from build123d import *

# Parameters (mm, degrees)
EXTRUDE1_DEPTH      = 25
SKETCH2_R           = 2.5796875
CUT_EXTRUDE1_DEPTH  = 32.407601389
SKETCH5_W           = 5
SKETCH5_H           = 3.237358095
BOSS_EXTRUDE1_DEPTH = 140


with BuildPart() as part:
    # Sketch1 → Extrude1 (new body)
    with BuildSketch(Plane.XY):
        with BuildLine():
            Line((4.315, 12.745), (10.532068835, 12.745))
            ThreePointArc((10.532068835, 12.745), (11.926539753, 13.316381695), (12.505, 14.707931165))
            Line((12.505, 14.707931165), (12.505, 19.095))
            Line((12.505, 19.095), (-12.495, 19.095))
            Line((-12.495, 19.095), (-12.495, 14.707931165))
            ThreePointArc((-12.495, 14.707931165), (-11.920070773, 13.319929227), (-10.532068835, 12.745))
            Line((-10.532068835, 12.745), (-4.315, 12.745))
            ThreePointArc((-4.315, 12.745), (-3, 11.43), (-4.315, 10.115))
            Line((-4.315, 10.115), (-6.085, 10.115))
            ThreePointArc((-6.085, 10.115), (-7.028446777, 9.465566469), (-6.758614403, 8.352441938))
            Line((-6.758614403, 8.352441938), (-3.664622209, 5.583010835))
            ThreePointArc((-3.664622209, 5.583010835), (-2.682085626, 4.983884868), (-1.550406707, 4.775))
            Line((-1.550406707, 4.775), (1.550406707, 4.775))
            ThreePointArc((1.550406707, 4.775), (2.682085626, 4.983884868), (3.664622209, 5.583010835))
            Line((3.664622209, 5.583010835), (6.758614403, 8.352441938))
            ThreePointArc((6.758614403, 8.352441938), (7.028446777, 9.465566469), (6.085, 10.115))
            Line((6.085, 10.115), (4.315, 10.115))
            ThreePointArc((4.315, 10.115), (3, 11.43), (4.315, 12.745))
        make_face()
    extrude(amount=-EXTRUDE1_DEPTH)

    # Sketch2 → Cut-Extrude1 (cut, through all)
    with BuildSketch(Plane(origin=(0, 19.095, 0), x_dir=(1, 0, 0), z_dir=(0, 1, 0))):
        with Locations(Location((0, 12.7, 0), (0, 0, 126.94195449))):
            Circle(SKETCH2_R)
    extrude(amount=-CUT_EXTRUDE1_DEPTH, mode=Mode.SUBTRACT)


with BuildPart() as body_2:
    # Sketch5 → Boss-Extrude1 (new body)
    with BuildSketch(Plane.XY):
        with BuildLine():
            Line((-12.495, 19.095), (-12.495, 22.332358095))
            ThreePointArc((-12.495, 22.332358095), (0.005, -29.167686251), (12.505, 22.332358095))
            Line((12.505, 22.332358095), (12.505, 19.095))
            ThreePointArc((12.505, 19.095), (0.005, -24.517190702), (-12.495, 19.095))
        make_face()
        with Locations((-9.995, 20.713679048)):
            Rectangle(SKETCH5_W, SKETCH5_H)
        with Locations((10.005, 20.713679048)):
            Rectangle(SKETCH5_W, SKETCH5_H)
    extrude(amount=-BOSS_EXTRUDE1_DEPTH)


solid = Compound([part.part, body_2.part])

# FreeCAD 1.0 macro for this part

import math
import FreeCAD as App
import Part
import Sketcher

V = App.Vector
Q = App.Units.Quantity

doc = App.newDocument("Part")
body = doc.addObject("PartDesign::Body", "Body")

sketch1 = body.newObject("Sketcher::SketchObject", "Sketch")
sketch1.AttachmentSupport = (doc.getObject("XY_Plane"), [""])
sketch1.MapMode = "FlatFace"
sketch1.addGeometry(Part.LineSegment(V(4.315, 12.745, 0), V(10.532069, 12.745, 0)), False)
sketch1.addGeometry(Part.ArcOfCircle(Part.Circle(V(10.542069, 14.707906, 0), V(0, 0, 1), 1.962931), math.radians(-90.29189), math.radians(0.000743)), False)
sketch1.addGeometry(Part.LineSegment(V(12.505, 14.707931, 0), V(12.505, 19.095, 0)), False)
sketch1.addGeometry(Part.LineSegment(V(12.505, 19.095, 0), V(-12.495, 19.095, 0)), False)
sketch1.addGeometry(Part.LineSegment(V(-12.495, 19.095, 0), V(-12.495, 14.707931, 0)), False)
sketch1.addGeometry(Part.ArcOfCircle(Part.Circle(V(-10.532069, 14.707931, 0), V(0, 0, 1), 1.962931), math.radians(180), math.radians(270)), False)
sketch1.addGeometry(Part.LineSegment(V(-10.532069, 12.745, 0), V(-4.315, 12.745, 0)), False)
sketch1.addGeometry(Part.ArcOfCircle(Part.Circle(V(-4.315, 11.43, 0), V(0, 0, 1), 1.315), math.radians(-90), math.radians(90)), False)
sketch1.addGeometry(Part.LineSegment(V(-4.315, 10.115, 0), V(-6.085, 10.115, 0)), False)
sketch1.addGeometry(Part.ArcOfCircle(Part.Circle(V(-6.085, 9.105, 0), V(0, 0, 1), 1.01), math.radians(90), math.radians(228.16829)), False)
sketch1.addGeometry(Part.LineSegment(V(-6.758614, 8.352442, 0), V(-3.664622, 5.583011, 0)), False)
sketch1.addGeometry(Part.ArcOfCircle(Part.Circle(V(-1.550407, 7.945, 0), V(0, 0, 1), 3.17), math.radians(-131.83171), math.radians(-90)), False)
sketch1.addGeometry(Part.LineSegment(V(-1.550407, 4.775, 0), V(1.550407, 4.775, 0)), False)
sketch1.addGeometry(Part.ArcOfCircle(Part.Circle(V(1.550407, 7.945, 0), V(0, 0, 1), 3.17), math.radians(-90), math.radians(-48.16829)), False)
sketch1.addGeometry(Part.LineSegment(V(3.664622, 5.583011, 0), V(6.758614, 8.352442, 0)), False)
sketch1.addGeometry(Part.ArcOfCircle(Part.Circle(V(6.085, 9.105, 0), V(0, 0, 1), 1.01), math.radians(-48.16829), math.radians(90)), False)
sketch1.addGeometry(Part.LineSegment(V(6.085, 10.115, 0), V(4.315, 10.115, 0)), False)
sketch1.addGeometry(Part.ArcOfCircle(Part.Circle(V(4.315, 11.43, 0), V(0, 0, 1), 1.315), math.radians(90), math.radians(270)), False)
sketch1.addConstraint(Sketcher.Constraint("Coincident", 0, 2, 1, 1))
sketch1.addConstraint(Sketcher.Constraint("Coincident", 1, 2, 2, 1))
sketch1.addConstraint(Sketcher.Constraint("Coincident", 2, 2, 3, 1))
sketch1.addConstraint(Sketcher.Constraint("Coincident", 3, 2, 4, 1))
sketch1.addConstraint(Sketcher.Constraint("Tangent", 4, 2, 5, 1))
sketch1.addConstraint(Sketcher.Constraint("Tangent", 5, 2, 6, 1))
sketch1.addConstraint(Sketcher.Constraint("Tangent", 6, 2, 7, 2))
sketch1.addConstraint(Sketcher.Constraint("Tangent", 7, 1, 8, 1))
sketch1.addConstraint(Sketcher.Constraint("Tangent", 8, 2, 9, 1))
sketch1.addConstraint(Sketcher.Constraint("Tangent", 9, 2, 10, 1))
sketch1.addConstraint(Sketcher.Constraint("Tangent", 10, 2, 11, 1))
sketch1.addConstraint(Sketcher.Constraint("Tangent", 11, 2, 12, 1))
sketch1.addConstraint(Sketcher.Constraint("Tangent", 12, 2, 13, 1))
sketch1.addConstraint(Sketcher.Constraint("Tangent", 13, 2, 14, 1))
sketch1.addConstraint(Sketcher.Constraint("Tangent", 14, 2, 15, 1))
sketch1.addConstraint(Sketcher.Constraint("Tangent", 15, 2, 16, 1))
sketch1.addConstraint(Sketcher.Constraint("Tangent", 16, 2, 17, 2))
sketch1.addConstraint(Sketcher.Constraint("Tangent", 17, 1, 0, 1))
sketch1.addConstraint(Sketcher.Constraint("Horizontal", 0))
sketch1.addConstraint(Sketcher.Constraint("Vertical", 2))
sketch1.addConstraint(Sketcher.Constraint("Horizontal", 3))
sketch1.addConstraint(Sketcher.Constraint("Vertical", 4))
sketch1.addConstraint(Sketcher.Constraint("Horizontal", 6))
sketch1.addConstraint(Sketcher.Constraint("Horizontal", 8))
sketch1.addConstraint(Sketcher.Constraint("Horizontal", 12))
sketch1.addConstraint(Sketcher.Constraint("Horizontal", 16))
sketch1.addConstraint(Sketcher.Constraint("Equal", 1, 5))
sketch1.addConstraint(Sketcher.Constraint("Equal", 11, 13))
sketch1.addConstraint(Sketcher.Constraint("Equal", 9, 15))
sketch1.addConstraint(Sketcher.Constraint("Equal", 7, 17))
sketch1.addConstraint(Sketcher.Constraint("Symmetric", 9, 3, 15, 3, -2))
sketch1.addConstraint(Sketcher.Constraint("Horizontal", 5, 3, 1, 2))
sketch1.addConstraint(Sketcher.Constraint("Horizontal", 10, 2, 13, 2))
sketch1.addConstraint(Sketcher.Constraint("Equal", 0, 6))
sketch1.addConstraint(Sketcher.Constraint("Equal", 8, 16))
sketch1.addConstraint(Sketcher.Constraint("DistanceX", 3, 2, 3, 1, Q("25 mm")))
sketch1.addConstraint(Sketcher.Constraint("Radius", 9, Q("1.01 mm")))
sketch1.addConstraint(Sketcher.Constraint("Radius", 11, Q("3.17 mm")))
sketch1.addConstraint(Sketcher.Constraint("Radius", 7, Q("1.315 mm")))
sketch1.addConstraint(Sketcher.Constraint("DistanceX", 8, 2, 8, 1, Q("1.77 mm")))
sketch1.addConstraint(Sketcher.Constraint("DistanceX", 7, 3, 15, 3, Q("10.4 mm")))
sketch1.addConstraint(Sketcher.Constraint("DistanceY", 13, 3, 0, 2, Q("4.8 mm")))
sketch1.addConstraint(Sketcher.Constraint("DistanceY", -1, 1, 7, 3, Q("11.43 mm")))
sketch1.addConstraint(Sketcher.Constraint("Radius", 1, Q("1.962931 mm")))
sketch1.addConstraint(Sketcher.Constraint("DistanceX", 0, 2, 1, 3, Q("0.01 mm")))
sketch1.addConstraint(Sketcher.Constraint("DistanceY", 0, 2, 2, 2, Q("6.35 mm")))
sketch1.addConstraint(Sketcher.Constraint("DistanceX", 12, 1, 12, 2, Q("3.100813 mm")))
pad1 = body.newObject("PartDesign::Pad", "Pad")
pad1.Profile = sketch1
pad1.Length = 25
pad1.Reversed = True

sketch2 = body.newObject("Sketcher::SketchObject", "Sketch001")
sketch2.AttachmentSupport = (doc.getObject("XZ_Plane"), [""])
sketch2.MapMode = "FlatFace"
sketch2.AttachmentOffset = App.Placement(V(0, 0, -19.095), App.Rotation())
sketch2.addGeometry(Part.Circle(V(0, -12.7, 0), V(0, 0, 1), 2.579687), False)
sketch2.addConstraint(Sketcher.Constraint("PointOnObject", 0, 3, -2))
sketch2.addConstraint(Sketcher.Constraint("DistanceY", 0, 3, -1, 1, Q("12.7 mm")))
sketch2.addConstraint(Sketcher.Constraint("Diameter", 0, Q("5.159375 mm")))
pocket1 = body.newObject("PartDesign::Pocket", "Pocket")
pocket1.Profile = sketch2
pocket1.Type = "ThroughAll"
pocket1.Reversed = True
body2 = doc.addObject("PartDesign::Body", "Body001")

sketch3 = body2.newObject("Sketcher::SketchObject", "Sketch002")
sketch3.AttachmentSupport = (doc.getObject("XY_Plane001"), [""])
sketch3.MapMode = "FlatFace"
sketch3.addGeometry(Part.ArcOfCircle(Part.Circle(V(0.005, -1.900675, 0), V(0, 0, 1), 27.267011), math.radians(117.285807), math.radians(422.714193)), False)
sketch3.addGeometry(Part.LineSegment(V(12.505, 22.332358, 0), V(7.505, 22.332358, 0)), False)
sketch3.addGeometry(Part.LineSegment(V(7.505, 22.332358, 0), V(7.505, 19.095, 0)), False)
sketch3.addGeometry(Part.LineSegment(V(7.505, 19.095, 0), V(12.505, 19.095, 0)), False)
sketch3.addGeometry(Part.ArcOfCircle(Part.Circle(V(0.005, -0.919738, 0), V(0, 0, 1), 23.597452), math.radians(121.986417), math.radians(418.013583)), False)
sketch3.addGeometry(Part.LineSegment(V(-12.495, 19.095, 0), V(-7.495, 19.095, 0)), False)
sketch3.addGeometry(Part.LineSegment(V(-7.495, 19.095, 0), V(-7.495, 22.332358, 0)), False)
sketch3.addGeometry(Part.LineSegment(V(-7.495, 22.332358, 0), V(-12.495, 22.332358, 0)), False)
sketch3.addConstraint(Sketcher.Constraint("Coincident", 0, 2, 1, 1))
sketch3.addConstraint(Sketcher.Constraint("Coincident", 1, 2, 2, 1))
sketch3.addConstraint(Sketcher.Constraint("Coincident", 2, 2, 3, 1))
sketch3.addConstraint(Sketcher.Constraint("Coincident", 3, 2, 4, 2))
sketch3.addConstraint(Sketcher.Constraint("Coincident", 4, 1, 5, 1))
sketch3.addConstraint(Sketcher.Constraint("Coincident", 5, 2, 6, 1))
sketch3.addConstraint(Sketcher.Constraint("Coincident", 6, 2, 7, 1))
sketch3.addConstraint(Sketcher.Constraint("Coincident", 7, 2, 0, 1))
sketch3.addConstraint(Sketcher.Constraint("Horizontal", 1))
sketch3.addConstraint(Sketcher.Constraint("Vertical", 2))
sketch3.addConstraint(Sketcher.Constraint("Horizontal", 3))
sketch3.addConstraint(Sketcher.Constraint("Horizontal", 5))
sketch3.addConstraint(Sketcher.Constraint("Vertical", 6))
sketch3.addConstraint(Sketcher.Constraint("Horizontal", 7))
sketch3.addConstraint(Sketcher.Constraint("Horizontal", 3, 2, 4, 1))
sketch3.addConstraint(Sketcher.Constraint("Horizontal", 1, 2, 6, 2))
sketch3.addConstraint(Sketcher.Constraint("Vertical", 0, 3, 4, 3))
sketch3.addConstraint(Sketcher.Constraint("Vertical", 0, 2, 3, 2))
sketch3.addConstraint(Sketcher.Constraint("Equal", 3, 5))
sketch3.addConstraint(Sketcher.Constraint("DistanceX", 1, 2, 1, 1, Q("5 mm")))
sketch3.addConstraint(Sketcher.Constraint("DistanceX", 4, 1, 2, 2, Q("20 mm")))
sketch3.addConstraint(Sketcher.Constraint("Radius", 0, Q("27.267011 mm")))
sketch3.addConstraint(Sketcher.Constraint("DistanceX", -1, 1, 0, 3, Q("0.005 mm")))
sketch3.addConstraint(Sketcher.Constraint("DistanceY", -1, 1, 2, 2, Q("19.095 mm")))
sketch3.addConstraint(Sketcher.Constraint("Radius", 4, Q("23.597452 mm")))
sketch3.addConstraint(Sketcher.Constraint("DistanceY", 2, 2, 2, 1, Q("3.237358 mm")))
pad2 = body2.newObject("PartDesign::Pad", "Pad001")
pad2.Profile = sketch3
pad2.Length = 140
pad2.Reversed = True

doc.recompute()
